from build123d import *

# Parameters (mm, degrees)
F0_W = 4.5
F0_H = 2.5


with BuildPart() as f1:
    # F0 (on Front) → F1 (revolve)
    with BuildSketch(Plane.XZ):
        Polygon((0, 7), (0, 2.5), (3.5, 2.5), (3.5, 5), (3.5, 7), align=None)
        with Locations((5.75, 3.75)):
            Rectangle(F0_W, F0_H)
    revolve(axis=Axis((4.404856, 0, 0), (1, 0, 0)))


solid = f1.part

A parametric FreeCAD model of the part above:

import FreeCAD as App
import Part
import Sketcher

V = App.Vector

doc = App.newDocument("Part")
params = doc.addObject("Spreadsheet::Sheet", "Params")
for row, (alias, value) in enumerate([
    ("sketch1_width", "8 mm"),
    ("sketch1_height", "2 mm"),
    ("sketch1_width2", "4.5 mm"),
    ("revolution_angle", "360 deg"),
], start=1):
    params.set(f"A{row}", alias)
    params.set(f"B{row}", "=" + value)
    params.setAlias(f"B{row}", alias)

body = doc.addObject("PartDesign::Body", "Body")

sketch1 = body.newObject("Sketcher::SketchObject", "Sketch")
sketch1.AttachmentSupport = (doc.getObject("XZ_Plane"), [""])
sketch1.MapMode = "FlatFace"
sketch1.addGeometry([
    Part.LineSegment(V(0, 7, 0), V(0, 2.5, 0)),
    Part.LineSegment(V(0, 2.5, 0), V(8, 2.5, 0)),
    Part.LineSegment(V(8, 2.5, 0), V(8, 5, 0)),
    Part.LineSegment(V(8, 5, 0), V(3.5, 5, 0)),
    Part.LineSegment(V(3.5, 5, 0), V(3.5, 7, 0)),
    Part.LineSegment(V(3.5, 7, 0), V(0, 7, 0)),
], False)
sketch1.addConstraint([
    Sketcher.Constraint("Coincident", 0, 2, 1, 1),
    Sketcher.Constraint("Coincident", 1, 2, 2, 1),
    Sketcher.Constraint("Coincident", 2, 2, 3, 1),
    Sketcher.Constraint("Coincident", 3, 2, 4, 1),
    Sketcher.Constraint("Coincident", 4, 2, 5, 1),
    Sketcher.Constraint("Coincident", 5, 2, 0, 1),
    Sketcher.Constraint("Vertical", 0),
    Sketcher.Constraint("Horizontal", 1),
    Sketcher.Constraint("Vertical", 2),
    Sketcher.Constraint("Horizontal", 3),
    Sketcher.Constraint("Vertical", 4),
    Sketcher.Constraint("Horizontal", 5),
    Sketcher.Constraint("PointOnObject", 0, 2, -2),
    Sketcher.Constraint("Equal", 3, 0),
    Sketcher.Constraint("DistanceX", 1, 1, 1, 2, 8.0),
    Sketcher.Constraint("DistanceY", 4, 1, 4, 2, 2.0),
    Sketcher.Constraint("DistanceX", 3, 2, 3, 1, 4.5),
    Sketcher.Constraint("DistanceY", -1, 1, 2, 2, 5.0),
])
sketch1.setExpression("Constraints[14]", "Params.sketch1_width")
sketch1.setExpression("Constraints[15]", "Params.sketch1_height")
sketch1.setExpression("Constraints[16]", "Params.sketch1_width2")
revolution = body.newObject("PartDesign::Revolution", "Revolution")
revolution.Profile = sketch1
revolution.ReferenceAxis = (sketch1, ["H_Axis"])
revolution.setExpression("Angle", "Params.revolution_angle")

doc.recompute()
